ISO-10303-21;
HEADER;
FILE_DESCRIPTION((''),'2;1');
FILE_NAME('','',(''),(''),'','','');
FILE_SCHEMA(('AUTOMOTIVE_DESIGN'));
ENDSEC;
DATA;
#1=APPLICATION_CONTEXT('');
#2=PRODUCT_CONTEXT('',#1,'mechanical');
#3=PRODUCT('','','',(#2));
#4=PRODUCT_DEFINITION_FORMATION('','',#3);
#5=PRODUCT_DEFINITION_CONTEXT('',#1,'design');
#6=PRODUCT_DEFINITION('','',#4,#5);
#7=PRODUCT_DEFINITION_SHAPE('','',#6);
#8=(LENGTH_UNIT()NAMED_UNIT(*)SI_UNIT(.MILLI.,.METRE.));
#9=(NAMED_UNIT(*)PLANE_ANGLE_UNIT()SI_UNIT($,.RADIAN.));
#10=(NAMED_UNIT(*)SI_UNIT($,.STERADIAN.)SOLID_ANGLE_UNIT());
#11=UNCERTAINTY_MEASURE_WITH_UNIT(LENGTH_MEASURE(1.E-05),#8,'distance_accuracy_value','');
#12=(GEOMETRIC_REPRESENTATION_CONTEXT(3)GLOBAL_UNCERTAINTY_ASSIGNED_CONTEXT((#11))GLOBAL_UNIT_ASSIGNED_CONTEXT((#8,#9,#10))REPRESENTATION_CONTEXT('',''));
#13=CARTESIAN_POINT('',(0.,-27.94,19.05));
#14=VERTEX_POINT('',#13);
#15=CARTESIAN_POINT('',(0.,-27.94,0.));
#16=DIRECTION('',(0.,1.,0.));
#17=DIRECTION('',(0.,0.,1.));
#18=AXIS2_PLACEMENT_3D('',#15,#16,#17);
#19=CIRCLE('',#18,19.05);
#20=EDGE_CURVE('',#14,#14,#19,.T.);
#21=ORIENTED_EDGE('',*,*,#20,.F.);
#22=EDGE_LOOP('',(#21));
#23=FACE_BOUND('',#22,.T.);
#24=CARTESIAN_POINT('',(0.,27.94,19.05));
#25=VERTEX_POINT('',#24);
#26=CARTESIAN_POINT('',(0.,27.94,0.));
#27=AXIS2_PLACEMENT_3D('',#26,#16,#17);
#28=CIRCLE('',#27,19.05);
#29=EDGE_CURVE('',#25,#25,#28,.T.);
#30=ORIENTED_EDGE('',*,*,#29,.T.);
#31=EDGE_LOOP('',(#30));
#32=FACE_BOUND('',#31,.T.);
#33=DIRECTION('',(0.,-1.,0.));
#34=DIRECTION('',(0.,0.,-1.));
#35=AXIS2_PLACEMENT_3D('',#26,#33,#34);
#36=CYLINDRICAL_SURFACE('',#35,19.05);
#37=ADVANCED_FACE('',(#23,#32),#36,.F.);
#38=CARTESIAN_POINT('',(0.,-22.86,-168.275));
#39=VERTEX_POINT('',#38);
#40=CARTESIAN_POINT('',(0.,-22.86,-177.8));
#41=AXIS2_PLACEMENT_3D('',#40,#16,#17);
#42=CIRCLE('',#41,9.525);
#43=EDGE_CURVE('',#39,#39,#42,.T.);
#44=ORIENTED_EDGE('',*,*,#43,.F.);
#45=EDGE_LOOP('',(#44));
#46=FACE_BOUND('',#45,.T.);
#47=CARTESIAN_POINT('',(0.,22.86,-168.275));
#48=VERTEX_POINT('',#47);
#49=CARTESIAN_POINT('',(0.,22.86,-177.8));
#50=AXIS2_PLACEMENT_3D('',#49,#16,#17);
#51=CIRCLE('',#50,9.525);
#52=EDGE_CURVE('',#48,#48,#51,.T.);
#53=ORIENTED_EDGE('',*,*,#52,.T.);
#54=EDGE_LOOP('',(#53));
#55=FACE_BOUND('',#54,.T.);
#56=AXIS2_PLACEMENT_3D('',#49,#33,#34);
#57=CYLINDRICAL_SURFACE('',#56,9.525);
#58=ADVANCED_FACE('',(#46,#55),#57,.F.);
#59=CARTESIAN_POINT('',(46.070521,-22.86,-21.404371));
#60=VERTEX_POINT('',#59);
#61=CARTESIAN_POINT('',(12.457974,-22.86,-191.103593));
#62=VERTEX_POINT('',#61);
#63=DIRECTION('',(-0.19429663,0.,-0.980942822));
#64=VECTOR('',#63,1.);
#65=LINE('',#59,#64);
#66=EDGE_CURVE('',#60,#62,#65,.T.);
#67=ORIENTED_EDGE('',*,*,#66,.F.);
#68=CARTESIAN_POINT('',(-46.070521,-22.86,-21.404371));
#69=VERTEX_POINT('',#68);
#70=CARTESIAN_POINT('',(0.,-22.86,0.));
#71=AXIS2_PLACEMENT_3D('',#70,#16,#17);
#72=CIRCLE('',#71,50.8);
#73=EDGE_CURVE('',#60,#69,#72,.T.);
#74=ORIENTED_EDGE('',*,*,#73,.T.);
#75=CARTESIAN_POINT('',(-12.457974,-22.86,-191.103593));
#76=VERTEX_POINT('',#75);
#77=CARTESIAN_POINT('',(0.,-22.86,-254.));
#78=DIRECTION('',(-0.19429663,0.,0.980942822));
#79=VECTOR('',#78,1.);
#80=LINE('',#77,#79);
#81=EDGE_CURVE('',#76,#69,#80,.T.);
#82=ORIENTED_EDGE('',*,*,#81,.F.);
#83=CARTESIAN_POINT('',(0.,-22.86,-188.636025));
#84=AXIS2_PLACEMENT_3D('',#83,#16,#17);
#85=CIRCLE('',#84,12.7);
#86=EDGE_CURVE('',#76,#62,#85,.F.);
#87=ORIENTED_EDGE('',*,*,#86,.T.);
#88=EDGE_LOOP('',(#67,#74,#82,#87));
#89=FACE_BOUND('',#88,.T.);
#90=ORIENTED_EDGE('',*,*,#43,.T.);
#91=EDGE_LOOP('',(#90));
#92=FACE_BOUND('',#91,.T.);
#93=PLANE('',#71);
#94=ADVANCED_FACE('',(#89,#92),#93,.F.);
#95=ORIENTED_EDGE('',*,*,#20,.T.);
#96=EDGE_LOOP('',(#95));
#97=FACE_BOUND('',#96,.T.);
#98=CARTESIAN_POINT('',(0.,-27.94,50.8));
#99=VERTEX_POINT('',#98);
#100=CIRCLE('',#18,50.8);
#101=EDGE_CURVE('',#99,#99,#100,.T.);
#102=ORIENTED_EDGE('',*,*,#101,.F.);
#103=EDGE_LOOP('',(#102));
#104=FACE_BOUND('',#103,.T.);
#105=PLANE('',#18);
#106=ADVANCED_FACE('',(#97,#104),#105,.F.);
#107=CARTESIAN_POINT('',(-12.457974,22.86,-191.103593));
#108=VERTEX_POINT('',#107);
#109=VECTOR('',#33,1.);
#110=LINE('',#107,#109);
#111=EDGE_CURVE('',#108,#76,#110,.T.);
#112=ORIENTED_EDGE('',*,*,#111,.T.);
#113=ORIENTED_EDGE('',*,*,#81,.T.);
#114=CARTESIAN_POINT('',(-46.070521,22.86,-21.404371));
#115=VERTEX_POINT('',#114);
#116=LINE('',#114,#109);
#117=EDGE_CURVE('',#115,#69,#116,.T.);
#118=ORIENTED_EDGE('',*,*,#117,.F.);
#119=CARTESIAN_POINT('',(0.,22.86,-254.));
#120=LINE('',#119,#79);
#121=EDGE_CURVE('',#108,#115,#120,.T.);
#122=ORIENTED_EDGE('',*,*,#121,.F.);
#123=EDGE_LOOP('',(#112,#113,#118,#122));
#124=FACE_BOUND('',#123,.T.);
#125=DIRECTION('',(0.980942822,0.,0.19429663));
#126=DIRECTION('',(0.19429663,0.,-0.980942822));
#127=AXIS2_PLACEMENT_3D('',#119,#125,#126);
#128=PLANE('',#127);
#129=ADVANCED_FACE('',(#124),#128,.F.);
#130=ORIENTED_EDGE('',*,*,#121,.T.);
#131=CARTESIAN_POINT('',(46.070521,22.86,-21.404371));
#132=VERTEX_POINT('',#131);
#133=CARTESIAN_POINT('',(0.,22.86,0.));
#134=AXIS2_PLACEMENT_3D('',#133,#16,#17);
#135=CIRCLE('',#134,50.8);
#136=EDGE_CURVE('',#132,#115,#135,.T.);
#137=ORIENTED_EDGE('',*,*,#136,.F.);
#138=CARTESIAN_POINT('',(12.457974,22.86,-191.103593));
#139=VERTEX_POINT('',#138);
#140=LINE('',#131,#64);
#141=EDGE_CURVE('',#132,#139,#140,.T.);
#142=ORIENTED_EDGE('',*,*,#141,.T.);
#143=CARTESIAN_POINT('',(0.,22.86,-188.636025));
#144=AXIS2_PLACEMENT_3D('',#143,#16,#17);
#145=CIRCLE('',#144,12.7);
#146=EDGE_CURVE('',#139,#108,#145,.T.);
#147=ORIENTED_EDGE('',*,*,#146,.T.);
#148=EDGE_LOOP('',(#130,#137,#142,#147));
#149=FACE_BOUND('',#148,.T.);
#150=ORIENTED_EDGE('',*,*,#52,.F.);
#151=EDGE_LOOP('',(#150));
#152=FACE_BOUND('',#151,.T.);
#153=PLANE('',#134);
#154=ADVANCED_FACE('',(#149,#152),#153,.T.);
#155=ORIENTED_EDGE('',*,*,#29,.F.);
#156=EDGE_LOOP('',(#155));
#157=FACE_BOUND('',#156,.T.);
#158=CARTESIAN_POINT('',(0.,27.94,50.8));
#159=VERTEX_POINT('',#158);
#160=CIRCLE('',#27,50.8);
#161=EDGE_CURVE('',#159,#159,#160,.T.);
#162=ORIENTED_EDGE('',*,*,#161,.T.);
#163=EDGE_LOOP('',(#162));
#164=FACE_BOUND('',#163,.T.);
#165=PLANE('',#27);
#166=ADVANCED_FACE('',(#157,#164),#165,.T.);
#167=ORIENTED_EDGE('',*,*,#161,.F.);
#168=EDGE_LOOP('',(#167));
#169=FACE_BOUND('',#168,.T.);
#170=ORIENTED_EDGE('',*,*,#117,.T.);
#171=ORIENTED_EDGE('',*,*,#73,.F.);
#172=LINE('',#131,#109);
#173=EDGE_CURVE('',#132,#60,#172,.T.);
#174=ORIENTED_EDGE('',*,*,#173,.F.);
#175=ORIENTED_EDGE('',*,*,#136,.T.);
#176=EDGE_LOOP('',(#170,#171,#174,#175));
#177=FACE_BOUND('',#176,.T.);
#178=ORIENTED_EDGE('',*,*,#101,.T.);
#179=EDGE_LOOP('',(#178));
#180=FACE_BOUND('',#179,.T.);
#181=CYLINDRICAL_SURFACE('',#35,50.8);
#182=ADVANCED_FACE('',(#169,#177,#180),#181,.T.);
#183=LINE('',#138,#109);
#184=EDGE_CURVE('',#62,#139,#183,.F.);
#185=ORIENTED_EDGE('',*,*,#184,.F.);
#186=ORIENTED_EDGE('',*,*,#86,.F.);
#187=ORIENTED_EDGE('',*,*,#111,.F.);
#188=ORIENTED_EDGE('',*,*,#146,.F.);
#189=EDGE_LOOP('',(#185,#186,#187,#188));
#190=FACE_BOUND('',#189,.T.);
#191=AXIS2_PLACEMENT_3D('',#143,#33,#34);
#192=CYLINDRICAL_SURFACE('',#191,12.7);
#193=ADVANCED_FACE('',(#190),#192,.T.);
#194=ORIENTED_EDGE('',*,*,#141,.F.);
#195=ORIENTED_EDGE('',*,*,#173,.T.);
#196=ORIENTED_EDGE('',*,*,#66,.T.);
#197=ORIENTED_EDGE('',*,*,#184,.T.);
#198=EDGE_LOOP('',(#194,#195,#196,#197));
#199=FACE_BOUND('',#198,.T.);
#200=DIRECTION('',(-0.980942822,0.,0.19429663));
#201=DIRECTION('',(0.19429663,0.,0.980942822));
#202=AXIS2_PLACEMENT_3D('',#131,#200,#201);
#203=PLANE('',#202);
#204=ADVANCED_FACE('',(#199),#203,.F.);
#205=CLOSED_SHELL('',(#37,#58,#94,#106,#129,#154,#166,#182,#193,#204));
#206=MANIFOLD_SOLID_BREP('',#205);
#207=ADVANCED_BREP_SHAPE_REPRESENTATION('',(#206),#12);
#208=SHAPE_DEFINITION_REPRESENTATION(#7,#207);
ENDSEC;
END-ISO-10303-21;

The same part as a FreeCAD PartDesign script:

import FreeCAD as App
import Part
import Sketcher

V = App.Vector
Q = App.Units.Quantity


def edges_at(feature, points):
    """Names of the edges that pass closest to the given points."""
    edges = feature.Shape.Edges
    near = lambda p: min(range(len(edges)), key=lambda i: edges[i].distToShape(Part.Vertex(*p))[0])
    return sorted({f"Edge{near(p) + 1}" for p in points})

doc = App.newDocument("Part")
body = doc.addObject("PartDesign::Body", "Body")

# Sketch on XZ plane
sketch1 = body.newObject("Sketcher::SketchObject", "Sketch")
sketch1.AttachmentSupport = (doc.getObject("XZ_Plane"), [""])
sketch1.MapMode = "FlatFace"
sketch1.addGeometry([
    Part.Circle(V(0, 0, 0), V(0, 0, 1), 51),
    Part.Circle(V(0, 0, 0), V(0, 0, 1), 19),
], False)
sketch1.addConstraint([
    Sketcher.Constraint("Coincident", 0, 3, -1, 1),
    Sketcher.Constraint("Coincident", 1, 3, -1, 1),
    Sketcher.Constraint("Diameter", 0, Q("4 in")),
    Sketcher.Constraint("Diameter", 1, Q("1.5 in")),
])
pad1 = body.newObject("PartDesign::Pad", "Pad")
pad1.Profile = sketch1
pad1.Length = Q("2.2 in")
pad1.Midplane = True

# Sketch on XZ plane
sketch2 = body.newObject("Sketcher::SketchObject", "Sketch001")
sketch2.AttachmentSupport = (doc.getObject("XZ_Plane"), [""])
sketch2.MapMode = "FlatFace"
sketch2.addGeometry([
    Part.LineSegment(V(-46, -21, 0), V(46, -21, 0)),
    Part.LineSegment(V(46, -21, 0), V(0, -254, 0)),
    Part.LineSegment(V(0, -254, 0), V(-46, -21, 0)),
    Part.Circle(V(0, -178, 0), V(0, 0, 1), 10),
], False)
sketch2.addConstraint([
    Sketcher.Constraint("Coincident", 0, 2, 1, 1),
    Sketcher.Constraint("Coincident", 1, 2, 2, 1),
    Sketcher.Constraint("Coincident", 2, 2, 0, 1),
    Sketcher.Constraint("Horizontal", 0),
    Sketcher.Constraint("PointOnObject", 3, 3, -2),
    Sketcher.Constraint("PointOnObject", 1, 2, -2),
    Sketcher.Constraint("Equal", 1, 2),
    Sketcher.Constraint("Diameter", 3, Q("0.75 in")),
    Sketcher.Constraint("DistanceY", 3, 3, -1, 1, Q("7 in")),
    Sketcher.Constraint("DistanceY", 1, 2, -1, 1, Q("10 in")),
    Sketcher.Constraint("DistanceX", 0, 1, 0, 2, Q("3.6276001 in")),
    Sketcher.Constraint("Distance", 1, Q("237.11436 mm")),
])
pad2 = body.newObject("PartDesign::Pad", "Pad001")
pad2.Profile = sketch2
pad2.Length = Q("1.8 in")
pad2.Midplane = True
doc.recompute()

fillet = body.newObject("PartDesign::Fillet", "Fillet")
fillet.Base = (pad2, edges_at(pad2, [(0, 0, -254)]))
fillet.Radius = Q("0.5 in")

doc.recompute()
